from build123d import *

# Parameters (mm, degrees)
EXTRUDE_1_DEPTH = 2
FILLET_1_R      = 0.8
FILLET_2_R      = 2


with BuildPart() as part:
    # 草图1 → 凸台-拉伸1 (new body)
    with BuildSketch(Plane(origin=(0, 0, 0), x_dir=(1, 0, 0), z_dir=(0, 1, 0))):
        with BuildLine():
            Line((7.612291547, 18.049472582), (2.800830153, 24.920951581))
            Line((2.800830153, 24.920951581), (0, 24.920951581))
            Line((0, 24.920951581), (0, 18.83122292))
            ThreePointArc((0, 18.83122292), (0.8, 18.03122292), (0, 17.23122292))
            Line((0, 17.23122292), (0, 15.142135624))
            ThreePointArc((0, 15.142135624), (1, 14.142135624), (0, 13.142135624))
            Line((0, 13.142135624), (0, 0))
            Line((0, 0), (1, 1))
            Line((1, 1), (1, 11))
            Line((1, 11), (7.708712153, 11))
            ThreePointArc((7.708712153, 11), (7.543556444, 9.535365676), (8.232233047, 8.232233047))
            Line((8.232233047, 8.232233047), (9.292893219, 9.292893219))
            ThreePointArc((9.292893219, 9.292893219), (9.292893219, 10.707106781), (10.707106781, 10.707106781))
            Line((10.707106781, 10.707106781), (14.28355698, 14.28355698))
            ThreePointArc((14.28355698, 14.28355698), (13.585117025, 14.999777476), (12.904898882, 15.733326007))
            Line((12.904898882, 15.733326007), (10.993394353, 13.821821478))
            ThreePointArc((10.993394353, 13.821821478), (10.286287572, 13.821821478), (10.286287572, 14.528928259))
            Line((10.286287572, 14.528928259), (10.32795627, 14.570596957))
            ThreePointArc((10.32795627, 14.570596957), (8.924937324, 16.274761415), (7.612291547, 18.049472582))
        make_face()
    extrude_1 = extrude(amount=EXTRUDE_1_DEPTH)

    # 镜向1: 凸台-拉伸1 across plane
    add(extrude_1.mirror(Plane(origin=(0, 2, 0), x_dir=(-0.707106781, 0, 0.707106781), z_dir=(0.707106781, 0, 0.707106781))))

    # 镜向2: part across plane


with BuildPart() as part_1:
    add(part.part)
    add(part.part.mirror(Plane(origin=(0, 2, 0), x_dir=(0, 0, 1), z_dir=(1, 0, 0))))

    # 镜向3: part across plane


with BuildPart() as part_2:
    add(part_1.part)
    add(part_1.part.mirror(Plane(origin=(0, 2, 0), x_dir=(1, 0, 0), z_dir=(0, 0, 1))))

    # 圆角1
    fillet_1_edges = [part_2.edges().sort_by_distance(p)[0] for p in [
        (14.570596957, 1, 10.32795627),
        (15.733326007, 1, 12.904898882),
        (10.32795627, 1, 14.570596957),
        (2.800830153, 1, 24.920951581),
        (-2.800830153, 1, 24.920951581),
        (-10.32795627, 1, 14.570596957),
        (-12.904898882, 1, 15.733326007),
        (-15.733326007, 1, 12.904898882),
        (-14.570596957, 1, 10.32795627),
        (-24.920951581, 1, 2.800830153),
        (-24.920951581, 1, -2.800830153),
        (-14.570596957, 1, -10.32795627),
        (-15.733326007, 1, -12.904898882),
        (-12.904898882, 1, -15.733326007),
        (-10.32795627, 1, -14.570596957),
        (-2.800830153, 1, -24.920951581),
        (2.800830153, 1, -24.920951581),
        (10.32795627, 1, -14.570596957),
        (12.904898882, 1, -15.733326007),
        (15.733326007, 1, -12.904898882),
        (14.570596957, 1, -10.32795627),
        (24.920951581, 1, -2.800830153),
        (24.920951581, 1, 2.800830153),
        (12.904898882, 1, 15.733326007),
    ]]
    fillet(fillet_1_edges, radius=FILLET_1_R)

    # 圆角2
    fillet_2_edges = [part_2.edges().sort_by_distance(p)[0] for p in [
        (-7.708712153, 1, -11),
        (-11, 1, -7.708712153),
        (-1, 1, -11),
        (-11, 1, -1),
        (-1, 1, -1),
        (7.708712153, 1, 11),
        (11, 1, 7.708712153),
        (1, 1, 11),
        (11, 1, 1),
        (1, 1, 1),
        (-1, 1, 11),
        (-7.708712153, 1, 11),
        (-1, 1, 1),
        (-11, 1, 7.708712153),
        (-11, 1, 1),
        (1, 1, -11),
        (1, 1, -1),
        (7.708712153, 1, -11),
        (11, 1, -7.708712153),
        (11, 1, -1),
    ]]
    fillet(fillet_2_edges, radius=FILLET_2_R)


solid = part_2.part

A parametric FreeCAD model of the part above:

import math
import FreeCAD as App
import Part
import Sketcher
Q = App.Units.Quantity


def edges_at(feature, points):
    """Names of the edges that pass closest to the given points."""
    edges = feature.Shape.Edges
    near = lambda p: min(range(len(edges)), key=lambda i: edges[i].distToShape(Part.Vertex(*p))[0])
    return sorted({f"Edge{near(p) + 1}" for p in points})

doc = App.newDocument("Part")
body = doc.addObject("PartDesign::Body", "Body")

# Sketch on XZ plane
sketch1 = body.newObject("Sketcher::SketchObject", "Sketch")
sketch1.AttachmentSupport = (doc.getObject("XZ_Plane"), [""])
sketch1.MapMode = "FlatFace"
sketch1.addGeometry(Part.LineSegment(App.Vector(7.61, -18.05, 0), App.Vector(2.8, -24.92, 0)), False)
sketch1.addGeometry(Part.LineSegment(App.Vector(2.8, -24.92, 0), App.Vector(0, -24.92, 0)), False)
sketch1.addGeometry(Part.LineSegment(App.Vector(0, -24.92, 0), App.Vector(0, -18.83, 0)), False)
sketch1.addGeometry(Part.ArcOfCircle(Part.Circle(App.Vector(0, -18.03, 0), App.Vector(0, 0, 1), 0.8), math.radians(-90), math.radians(90)), False)
sketch1.addGeometry(Part.LineSegment(App.Vector(0, -17.23, 0), App.Vector(0, -15.14, 0)), False)
sketch1.addGeometry(Part.ArcOfCircle(Part.Circle(App.Vector(0, -14.14, 0), App.Vector(0, 0, 1), 1), math.radians(-90), math.radians(90)), False)
sketch1.addGeometry(Part.LineSegment(App.Vector(0, -13.14, 0), App.Vector(0, 0, 0)), False)
sketch1.addGeometry(Part.LineSegment(App.Vector(0, 0, 0), App.Vector(1, -1, 0)), False)
sketch1.addGeometry(Part.LineSegment(App.Vector(1, -1, 0), App.Vector(1, -11, 0)), False)
sketch1.addGeometry(Part.LineSegment(App.Vector(1, -11, 0), App.Vector(7.71, -11, 0)), False)
sketch1.addGeometry(Part.ArcOfCircle(Part.Circle(App.Vector(10, -10, 0), App.Vector(0, 0, 1), 2.5), math.radians(135), math.radians(204)), False)
sketch1.addGeometry(Part.LineSegment(App.Vector(8.23, -8.23, 0), App.Vector(9.29, -9.29, 0)), False)
sketch1.addGeometry(Part.ArcOfCircle(Part.Circle(App.Vector(10, -10, 0), App.Vector(0, 0, 1), 1), math.radians(135), math.radians(315)), False)
sketch1.addGeometry(Part.LineSegment(App.Vector(10.71, -10.71, 0), App.Vector(14.28, -14.28, 0)), False)
sketch1.addGeometry(Part.ArcOfCircle(Part.Circle(App.Vector(42.43, -42.43, 0), App.Vector(0, 0, 1), 39.8), math.radians(135), math.radians(137.88)), False)
sketch1.addGeometry(Part.LineSegment(App.Vector(12.9, -15.73, 0), App.Vector(10.99, -13.82, 0)), False)
sketch1.addGeometry(Part.ArcOfCircle(Part.Circle(App.Vector(10.64, -14.18, 0), App.Vector(0, 0, 1), 0.5), math.radians(45), math.radians(225)), False)
sketch1.addGeometry(Part.LineSegment(App.Vector(10.29, -14.53, 0), App.Vector(10.33, -14.57, 0)), False)
sketch1.addGeometry(Part.ArcOfCircle(Part.Circle(App.Vector(42.43, -42.43, 0), App.Vector(0, 0, 1), 42.5), math.radians(139.05), math.radians(145)), False)
sketch1.addConstraint(Sketcher.Constraint("Coincident", 0, 2, 1, 1))
sketch1.addConstraint(Sketcher.Constraint("Coincident", 1, 2, 2, 1))
sketch1.addConstraint(Sketcher.Constraint("Coincident", 2, 2, 3, 1))
sketch1.addConstraint(Sketcher.Constraint("Coincident", 3, 2, 4, 1))
sketch1.addConstraint(Sketcher.Constraint("Coincident", 4, 2, 5, 1))
sketch1.addConstraint(Sketcher.Constraint("Coincident", 5, 2, 6, 1))
sketch1.addConstraint(Sketcher.Constraint("Coincident", 6, 2, 7, 1))
sketch1.addConstraint(Sketcher.Constraint("Coincident", 7, 2, 8, 1))
sketch1.addConstraint(Sketcher.Constraint("Coincident", 8, 2, 9, 1))
sketch1.addConstraint(Sketcher.Constraint("Coincident", 9, 2, 10, 2))
sketch1.addConstraint(Sketcher.Constraint("Coincident", 10, 1, 11, 1))
sketch1.addConstraint(Sketcher.Constraint("Coincident", 11, 2, 12, 1))
sketch1.addConstraint(Sketcher.Constraint("Coincident", 12, 2, 13, 1))
sketch1.addConstraint(Sketcher.Constraint("Coincident", 13, 2, 14, 1))
sketch1.addConstraint(Sketcher.Constraint("Coincident", 14, 2, 15, 1))
sketch1.addConstraint(Sketcher.Constraint("Tangent", 15, 2, 16, 1))
sketch1.addConstraint(Sketcher.Constraint("Tangent", 16, 2, 17, 1))
sketch1.addConstraint(Sketcher.Constraint("Coincident", 17, 2, 18, 1))
sketch1.addConstraint(Sketcher.Constraint("Tangent", 18, 2, 0, 1))
sketch1.addConstraint(Sketcher.Constraint("Horizontal", 1))
sketch1.addConstraint(Sketcher.Constraint("Vertical", 2))
sketch1.addConstraint(Sketcher.Constraint("Vertical", 4))
sketch1.addConstraint(Sketcher.Constraint("Vertical", 6))
sketch1.addConstraint(Sketcher.Constraint("Vertical", 8))
sketch1.addConstraint(Sketcher.Constraint("Horizontal", 9))
sketch1.addConstraint(Sketcher.Constraint("Coincident", 6, 2, -1, 1))
sketch1.addConstraint(Sketcher.Constraint("Coincident", 12, 3, 10, 3))
sketch1.addConstraint(Sketcher.Constraint("Equal", 5, 12))
sketch1.addConstraint(Sketcher.Constraint("PointOnObject", 3, 3, -2))
sketch1.addConstraint(Sketcher.Constraint("PointOnObject", 5, 3, -2))
sketch1.addConstraint(Sketcher.Constraint("PointOnObject", 1, 2, -2))
sketch1.addConstraint(Sketcher.Constraint("PointOnObject", 3, 2, -2))
sketch1.addConstraint(Sketcher.Constraint("Parallel", 7, 11))
sketch1.addConstraint(Sketcher.Constraint("Parallel", 11, 13))
sketch1.addConstraint(Sketcher.Constraint("Parallel", 13, 15))
sketch1.addConstraint(Sketcher.Constraint("Parallel", 15, 17))
sketch1.addConstraint(Sketcher.Constraint("Radius", 5, Q("1 mm")))
sketch1.addConstraint(Sketcher.Constraint("Radius", 3, Q("0.8 mm")))
sketch1.addConstraint(Sketcher.Constraint("Radius", 10, Q("2.5 mm")))
sketch1.addConstraint(Sketcher.Constraint("Radius", 14, Q("39.800001 mm")))
sketch1.addConstraint(Sketcher.Constraint("Radius", 16, Q("0.5 mm")))
sketch1.addConstraint(Sketcher.Constraint("DistanceY", 8, 2, 8, 1, Q("10 mm")))
sketch1.addConstraint(Sketcher.Constraint("Angle", 0, Q("-125 deg")))
sketch1.addConstraint(Sketcher.Constraint("Angle", 7, Q("-45 deg")))
sketch1.addConstraint(Sketcher.Constraint("DistanceX", -1, 1, 10, 3, Q("10 mm")))
sketch1.addConstraint(Sketcher.Constraint("DistanceY", 10, 3, -1, 1, Q("10 mm")))
sketch1.addConstraint(Sketcher.Constraint("DistanceX", -1, 1, 7, 2, Q("1 mm")))
sketch1.addConstraint(Sketcher.Constraint("Radius", 18, Q("42.500887 mm")))
sketch1.addConstraint(Sketcher.Constraint("DistanceX", 1, 2, 1, 1, Q("2.80083 mm")))
sketch1.addConstraint(Sketcher.Constraint("DistanceY", 2, 1, 2, 2, Q("6.089729 mm")))
sketch1.addConstraint(Sketcher.Constraint("DistanceX", -1, 1, 14, 2, Q("12.904899 mm")))
sketch1.addConstraint(Sketcher.Constraint("Distance", 17, Q("0.058928 mm")))
sketch1.addConstraint(Sketcher.Constraint("DistanceY", 4, 1, 4, 2, Q("2.089087 mm")))
sketch1.addConstraint(Sketcher.Constraint("DistanceY", 6, 1, 6, 2, Q("13.142136 mm")))
sketch1.addConstraint(Sketcher.Constraint("DistanceX", -1, 1, 16, 3, Q("10.639841 mm")))
sketch1.addConstraint(Sketcher.Constraint("DistanceX", -1, 1, 18, 3, Q("42.42698 mm")))
sketch1.addConstraint(Sketcher.Constraint("DistanceY", 14, 3, 5, 3, Q("28.284272 mm")))
sketch1.addConstraint(Sketcher.Constraint("DistanceX", 9, 2, 10, 1, Q("0.523521 mm")))
sketch1.addConstraint(Sketcher.Constraint("DistanceY", 16, 3, 12, 2, Q("3.468268 mm")))
pad1 = body.newObject("PartDesign::Pad", "Pad")
pad1.Profile = sketch1
pad1.Length = 2
pad1.Reversed = True
doc.recompute()

datumplane = body.newObject("PartDesign::Plane", "DatumPlane")
datumplane.Placement = App.Placement(App.Vector(0, 0, 0), App.Rotation(App.Vector(-0.707106781, 0, 0.707106781), App.Vector(0, -1, 0), App.Vector(0.707106781, 0, 0.707106781), "ZXY"))
mirrored = body.newObject("PartDesign::Mirrored", "Mirrored")
mirrored.Originals = [pad1]
mirrored.MirrorPlane = (datumplane, [""])
body.Tip = mirrored
body2 = doc.addObject("PartDesign::Body", "Body001")
doc.recompute()

body2.BaseFeature = body
doc.recompute()

mirroring = doc.addObject("Part::Mirroring", "Mirroring")
mirroring.Source = body
mirroring.Base = App.Vector(0, 2, 0)
mirroring.Normal = App.Vector(1, 0, 0)
body3 = doc.addObject("PartDesign::Body", "Body002")
body3.BaseFeature = mirroring
boolean = body2.newObject("PartDesign::Boolean", "Boolean")
boolean.Type = "Fuse"
boolean.addObjects([body3])
doc.recompute()
body4 = doc.addObject("PartDesign::Body", "Body003")
doc.recompute()

body4.BaseFeature = body2
doc.recompute()

mirroring2 = doc.addObject("Part::Mirroring", "Mirroring001")
mirroring2.Source = body2
mirroring2.Base = App.Vector(0, 2, 0)
mirroring2.Normal = App.Vector(0, 0, 1)
body5 = doc.addObject("PartDesign::Body", "Body004")
body5.BaseFeature = mirroring2
boolean2 = body4.newObject("PartDesign::Boolean", "Boolean001")
boolean2.Type = "Fuse"
boolean2.addObjects([body5])
doc.recompute()

fillet = body4.newObject("PartDesign::Fillet", "Fillet")
fillet.Base = (boolean2, edges_at(boolean2, [
    (14.571, 1, 10.328),
    (15.733, 1, 12.905),
    (10.328, 1, 14.571),
    (2.801, 1, 24.921),
    (-2.801, 1, 24.921),
    (-10.328, 1, 14.571),
    (-12.905, 1, 15.733),
    (-15.733, 1, 12.905),
    (-14.571, 1, 10.328),
    (-24.921, 1, 2.801),
    (-24.921, 1, -2.801),
    (-14.571, 1, -10.328),
    (-15.733, 1, -12.905),
    (-12.905, 1, -15.733),
    (-10.328, 1, -14.571),
    (-2.801, 1, -24.921),
    (2.801, 1, -24.921),
    (10.328, 1, -14.571),
    (12.905, 1, -15.733),
    (15.733, 1, -12.905),
    (14.571, 1, -10.328),
    (24.921, 1, -2.801),
    (24.921, 1, 2.801),
    (12.905, 1, 15.733),
]))
fillet.Radius = 0.8
doc.recompute()

fillet2 = body4.newObject("PartDesign::Fillet", "Fillet001")
fillet2.Base = (fillet, edges_at(fillet, [
    (-7.709, 1, -11),
    (-11, 1, -7.709),
    (-1, 1, -11),
    (-11, 1, -1),
    (-1, 1, -1),
    (7.709, 1, 11),
    (11, 1, 7.709),
    (1, 1, 11),
    (11, 1, 1),
    (1, 1, 1),
    (-1, 1, 11),
    (-7.709, 1, 11),
    (-1, 1, 1),
    (-11, 1, 7.709),
    (-11, 1, 1),
    (1, 1, -11),
    (1, 1, -1),
    (7.709, 1, -11),
    (11, 1, -7.709),
    (11, 1, -1),
]))
fillet2.Radius = 2
mirroring.Visibility = False
mirroring2.Visibility = False

doc.recompute()
